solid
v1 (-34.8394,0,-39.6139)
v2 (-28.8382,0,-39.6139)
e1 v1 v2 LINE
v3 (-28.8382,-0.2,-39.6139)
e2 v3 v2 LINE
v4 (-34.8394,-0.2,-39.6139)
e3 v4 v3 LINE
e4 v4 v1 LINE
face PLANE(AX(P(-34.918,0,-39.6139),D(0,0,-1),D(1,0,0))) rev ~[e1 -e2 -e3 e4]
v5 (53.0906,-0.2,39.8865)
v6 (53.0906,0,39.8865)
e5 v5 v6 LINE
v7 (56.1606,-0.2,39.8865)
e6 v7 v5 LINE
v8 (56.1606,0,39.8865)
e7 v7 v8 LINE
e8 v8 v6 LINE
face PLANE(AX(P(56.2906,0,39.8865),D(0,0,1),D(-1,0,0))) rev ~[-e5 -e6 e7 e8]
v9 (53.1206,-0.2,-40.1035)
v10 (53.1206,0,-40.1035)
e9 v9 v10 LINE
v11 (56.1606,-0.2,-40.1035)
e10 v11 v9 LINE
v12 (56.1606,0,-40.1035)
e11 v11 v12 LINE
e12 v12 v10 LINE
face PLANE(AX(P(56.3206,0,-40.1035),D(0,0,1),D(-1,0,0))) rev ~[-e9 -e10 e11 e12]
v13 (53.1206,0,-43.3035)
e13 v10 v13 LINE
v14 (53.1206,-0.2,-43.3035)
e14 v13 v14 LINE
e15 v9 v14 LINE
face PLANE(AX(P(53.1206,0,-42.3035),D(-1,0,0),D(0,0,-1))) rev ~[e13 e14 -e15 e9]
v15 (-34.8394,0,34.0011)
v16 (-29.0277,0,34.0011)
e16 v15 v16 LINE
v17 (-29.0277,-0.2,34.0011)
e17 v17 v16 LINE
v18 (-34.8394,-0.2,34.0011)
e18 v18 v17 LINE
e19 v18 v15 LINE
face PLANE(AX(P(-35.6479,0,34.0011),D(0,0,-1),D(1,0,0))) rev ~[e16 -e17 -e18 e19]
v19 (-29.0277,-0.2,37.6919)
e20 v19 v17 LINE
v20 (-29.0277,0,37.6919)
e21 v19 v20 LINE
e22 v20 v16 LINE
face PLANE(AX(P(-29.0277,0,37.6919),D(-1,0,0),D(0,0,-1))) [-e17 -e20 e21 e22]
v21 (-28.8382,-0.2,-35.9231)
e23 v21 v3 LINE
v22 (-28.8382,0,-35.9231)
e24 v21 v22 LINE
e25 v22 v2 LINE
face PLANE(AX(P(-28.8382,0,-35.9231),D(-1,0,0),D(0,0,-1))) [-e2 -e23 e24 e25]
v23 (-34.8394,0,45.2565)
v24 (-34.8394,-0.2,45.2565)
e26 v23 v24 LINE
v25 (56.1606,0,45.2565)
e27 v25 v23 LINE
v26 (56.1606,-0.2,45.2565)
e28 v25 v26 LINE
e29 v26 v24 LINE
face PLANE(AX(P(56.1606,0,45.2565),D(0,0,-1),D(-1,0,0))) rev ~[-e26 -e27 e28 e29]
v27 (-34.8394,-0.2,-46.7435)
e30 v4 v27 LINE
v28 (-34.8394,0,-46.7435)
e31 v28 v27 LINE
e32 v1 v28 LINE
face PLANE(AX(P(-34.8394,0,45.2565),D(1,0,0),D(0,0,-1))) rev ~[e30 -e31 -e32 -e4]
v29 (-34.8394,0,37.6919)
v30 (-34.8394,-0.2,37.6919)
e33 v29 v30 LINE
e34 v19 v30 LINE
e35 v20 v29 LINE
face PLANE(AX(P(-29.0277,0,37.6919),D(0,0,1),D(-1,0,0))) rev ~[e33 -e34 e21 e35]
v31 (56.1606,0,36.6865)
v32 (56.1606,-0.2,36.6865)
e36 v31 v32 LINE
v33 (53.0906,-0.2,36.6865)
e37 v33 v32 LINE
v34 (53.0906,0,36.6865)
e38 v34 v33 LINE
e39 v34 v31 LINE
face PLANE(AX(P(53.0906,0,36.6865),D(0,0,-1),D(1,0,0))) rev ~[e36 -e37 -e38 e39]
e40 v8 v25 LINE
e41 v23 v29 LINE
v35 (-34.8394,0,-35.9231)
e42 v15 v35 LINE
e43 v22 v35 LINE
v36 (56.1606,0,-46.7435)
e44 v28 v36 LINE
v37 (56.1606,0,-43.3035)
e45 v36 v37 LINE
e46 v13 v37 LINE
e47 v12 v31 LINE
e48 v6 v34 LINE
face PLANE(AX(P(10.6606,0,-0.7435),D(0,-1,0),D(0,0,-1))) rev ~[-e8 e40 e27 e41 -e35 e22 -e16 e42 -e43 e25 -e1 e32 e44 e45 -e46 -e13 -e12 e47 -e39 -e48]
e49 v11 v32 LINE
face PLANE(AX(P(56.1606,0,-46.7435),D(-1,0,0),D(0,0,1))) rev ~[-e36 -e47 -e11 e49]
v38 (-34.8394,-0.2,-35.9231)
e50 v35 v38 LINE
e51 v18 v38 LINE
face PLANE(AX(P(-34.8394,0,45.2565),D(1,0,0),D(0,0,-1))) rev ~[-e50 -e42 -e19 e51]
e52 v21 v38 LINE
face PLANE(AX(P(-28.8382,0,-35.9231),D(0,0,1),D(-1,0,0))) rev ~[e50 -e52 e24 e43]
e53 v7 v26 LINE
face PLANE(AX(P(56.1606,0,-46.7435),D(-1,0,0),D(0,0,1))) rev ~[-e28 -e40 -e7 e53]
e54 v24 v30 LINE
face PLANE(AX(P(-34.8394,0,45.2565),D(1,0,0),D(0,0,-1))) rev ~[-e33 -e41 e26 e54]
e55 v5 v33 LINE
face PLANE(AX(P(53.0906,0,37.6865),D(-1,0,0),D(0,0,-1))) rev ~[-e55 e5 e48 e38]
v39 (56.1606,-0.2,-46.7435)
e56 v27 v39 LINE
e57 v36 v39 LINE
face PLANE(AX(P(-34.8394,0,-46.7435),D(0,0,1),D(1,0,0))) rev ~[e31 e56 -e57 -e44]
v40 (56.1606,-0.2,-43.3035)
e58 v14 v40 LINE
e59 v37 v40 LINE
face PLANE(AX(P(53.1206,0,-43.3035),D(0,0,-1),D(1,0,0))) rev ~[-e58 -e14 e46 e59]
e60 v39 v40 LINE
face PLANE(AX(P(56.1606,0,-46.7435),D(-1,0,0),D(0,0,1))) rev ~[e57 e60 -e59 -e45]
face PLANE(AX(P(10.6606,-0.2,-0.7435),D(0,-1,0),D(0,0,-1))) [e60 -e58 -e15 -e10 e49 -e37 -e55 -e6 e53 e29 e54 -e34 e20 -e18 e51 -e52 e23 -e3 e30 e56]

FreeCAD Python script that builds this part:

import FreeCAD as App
import Part
import Sketcher
from FreeCAD import Vector
Q = App.Units.Quantity

doc = App.newDocument("Part")
params = doc.addObject("Spreadsheet::Sheet", "Params")
for row, (alias, value) in enumerate([
    ("sketch1_width", "91 mm"),
    ("sketch1_height", "92 mm"),
    ("pad1_length", "0.2 mm"),
    ("sketch2_diameter", "3.18 mm"),
    ("pocket1_length", "0.2 mm"),
    ("sketch3_width", "3.2 mm"),
    ("pocket2_length", "12.4682 mm"),
    ("sketch4_width", "3.2 mm"),
    ("pocket3_length", "17.7174 mm"),
    ("pocket4_length", "21.0656 mm"),
], start=1):
    params.set(f"A{row}", alias)
    params.set(f"B{row}", "=" + value)
    params.setAlias(f"B{row}", alias)

body = doc.addObject("PartDesign::Body", "Body")

# Sketch on XZ plane
sketch1 = body.newObject("Sketcher::SketchObject", "Sketch")
sketch1.AttachmentSupport = (doc.getObject("XZ_Plane"), [""])
sketch1.MapMode = "FlatFace"
sketch1.addGeometry(Part.LineSegment(Vector(-34.8394, 45.2565, 0), Vector(-34.8394, -46.7435, 0)), False)
sketch1.addGeometry(Part.LineSegment(Vector(-34.8394, -46.7435, 0), Vector(56.1606, -46.7435, 0)), False)
sketch1.addGeometry(Part.LineSegment(Vector(56.1606, -46.7435, 0), Vector(56.1606, 45.2565, 0)), False)
sketch1.addGeometry(Part.LineSegment(Vector(56.1606, 45.2565, 0), Vector(-34.8394, 45.2565, 0)), False)
sketch1.addConstraint(Sketcher.Constraint("Coincident", 0, 2, 1, 1))
sketch1.addConstraint(Sketcher.Constraint("Coincident", 1, 2, 2, 1))
sketch1.addConstraint(Sketcher.Constraint("Coincident", 2, 2, 3, 1))
sketch1.addConstraint(Sketcher.Constraint("Coincident", 3, 2, 0, 1))
sketch1.addConstraint(Sketcher.Constraint("Vertical", 0))
sketch1.addConstraint(Sketcher.Constraint("Horizontal", 1))
sketch1.addConstraint(Sketcher.Constraint("Vertical", 2))
sketch1.addConstraint(Sketcher.Constraint("Horizontal", 3))
sketch1.addConstraint(Sketcher.Constraint("DistanceX", 1, 1, 1, 2, Q("91 mm")))
sketch1.addConstraint(Sketcher.Constraint("DistanceY", 0, 2, 0, 1, Q("92 mm")))
sketch1.addConstraint(Sketcher.Constraint("DistanceX", 0, 2, -1, 1, Q("34.8394 mm")))
sketch1.addConstraint(Sketcher.Constraint("DistanceY", 0, 2, -1, 1, Q("46.7435 mm")))
sketch1.setExpression("Constraints[8]", "Params.sketch1_width")
sketch1.setExpression("Constraints[9]", "Params.sketch1_height")
pad1 = body.newObject("PartDesign::Pad", "Pad")
pad1.Profile = sketch1
pad1.setExpression("Length", "Params.pad1_length")

# Sketch on XZ plane
sketch2 = body.newObject("Sketcher::SketchObject", "Sketch001")
sketch2.AttachmentSupport = (doc.getObject("XZ_Plane"), [""])
sketch2.MapMode = "FlatFace"
sketch2.AttachmentOffset = App.Placement(Vector(0, 0, 0.2), App.Rotation())
sketch2.addGeometry(Part.Circle(Vector(-30.7894, -37.7535, 0), Vector(0, 0, 1), 1.59), False)
sketch2.addGeometry(Part.Circle(Vector(54.6906, 38.2865, 0), Vector(0, 0, 1), 1.59), False)
sketch2.addGeometry(Part.Circle(Vector(54.7206, -41.7035, 0), Vector(0, 0, 1), 1.59), False)
sketch2.addGeometry(Part.Circle(Vector(-31.0894, 35.8465, 0), Vector(0, 0, 1), 1.59), False)
sketch2.addConstraint(Sketcher.Constraint("Equal", 0, 1))
sketch2.addConstraint(Sketcher.Constraint("Equal", 1, 2))
sketch2.addConstraint(Sketcher.Constraint("Equal", 2, 3))
sketch2.addConstraint(Sketcher.Constraint("Diameter", 0, Q("3.18 mm")))
sketch2.addConstraint(Sketcher.Constraint("DistanceX", 3, 3, 0, 3, Q("0.3 mm")))
sketch2.addConstraint(Sketcher.Constraint("DistanceY", 0, 3, 3, 3, Q("73.6 mm")))
sketch2.addConstraint(Sketcher.Constraint("DistanceX", 0, 3, 1, 3, Q("85.48 mm")))
sketch2.addConstraint(Sketcher.Constraint("DistanceY", 0, 3, 1, 3, Q("76.04 mm")))
sketch2.addConstraint(Sketcher.Constraint("DistanceX", 1, 3, 2, 3, Q("0.03 mm")))
sketch2.addConstraint(Sketcher.Constraint("DistanceY", 2, 3, 1, 3, Q("79.99 mm")))
sketch2.addConstraint(Sketcher.Constraint("DistanceX", 0, 3, -1, 1, Q("30.7894 mm")))
sketch2.addConstraint(Sketcher.Constraint("DistanceY", 0, 3, -1, 1, Q("37.7535 mm")))
sketch2.setExpression("Constraints[3]", "Params.sketch2_diameter")
pocket1 = body.newObject("PartDesign::Pocket", "Pocket")
pocket1.Profile = sketch2
pocket1.setExpression("Length", "Params.pocket1_length")

# Sketch on XZ plane
sketch3 = body.newObject("Sketcher::SketchObject", "Sketch002")
sketch3.AttachmentSupport = (doc.getObject("XZ_Plane"), [""])
sketch3.MapMode = "FlatFace"
sketch3.addGeometry(Part.LineSegment(Vector(53.1206, -43.3035, 0), Vector(53.1206, -40.1035, 0)), False)
sketch3.addGeometry(Part.LineSegment(Vector(53.1206, -40.1035, 0), Vector(56.3206, -40.1035, 0)), False)
sketch3.addGeometry(Part.LineSegment(Vector(56.3206, -40.1035, 0), Vector(56.3206, -43.3035, 0)), False)
sketch3.addGeometry(Part.LineSegment(Vector(56.3206, -43.3035, 0), Vector(53.1206, -43.3035, 0)), False)
sketch3.addConstraint(Sketcher.Constraint("Coincident", 0, 2, 1, 1))
sketch3.addConstraint(Sketcher.Constraint("Coincident", 1, 2, 2, 1))
sketch3.addConstraint(Sketcher.Constraint("Coincident", 2, 2, 3, 1))
sketch3.addConstraint(Sketcher.Constraint("Coincident", 3, 2, 0, 1))
sketch3.addConstraint(Sketcher.Constraint("Vertical", 0))
sketch3.addConstraint(Sketcher.Constraint("Horizontal", 1))
sketch3.addConstraint(Sketcher.Constraint("Vertical", 2))
sketch3.addConstraint(Sketcher.Constraint("Horizontal", 3))
sketch3.addConstraint(Sketcher.Constraint("Equal", 3, 0))
sketch3.addConstraint(Sketcher.Constraint("DistanceX", 1, 1, 1, 2, Q("3.2 mm")))
sketch3.addConstraint(Sketcher.Constraint("DistanceX", -1, 1, 0, 2, Q("53.1206 mm")))
sketch3.addConstraint(Sketcher.Constraint("DistanceY", 0, 2, -1, 1, Q("40.1035 mm")))
sketch3.setExpression("Constraints[9]", "Params.sketch3_width")
pocket2 = body.newObject("PartDesign::Pocket", "Pocket001")
pocket2.Profile = sketch3
pocket2.setExpression("Length", "Params.pocket2_length")
pocket2.Midplane = True

# Sketch on XZ plane
sketch4 = body.newObject("Sketcher::SketchObject", "Sketch003")
sketch4.AttachmentSupport = (doc.getObject("XZ_Plane"), [""])
sketch4.MapMode = "FlatFace"
sketch4.addGeometry(Part.LineSegment(Vector(53.0906, 36.6865, 0), Vector(53.0906, 39.8865, 0)), False)
sketch4.addGeometry(Part.LineSegment(Vector(53.0906, 39.8865, 0), Vector(56.2906, 39.8865, 0)), False)
sketch4.addGeometry(Part.LineSegment(Vector(56.2906, 39.8865, 0), Vector(56.2906, 36.6865, 0)), False)
sketch4.addGeometry(Part.LineSegment(Vector(56.2906, 36.6865, 0), Vector(53.0906, 36.6865, 0)), False)
sketch4.addConstraint(Sketcher.Constraint("Coincident", 0, 2, 1, 1))
sketch4.addConstraint(Sketcher.Constraint("Coincident", 1, 2, 2, 1))
sketch4.addConstraint(Sketcher.Constraint("Coincident", 2, 2, 3, 1))
sketch4.addConstraint(Sketcher.Constraint("Coincident", 3, 2, 0, 1))
sketch4.addConstraint(Sketcher.Constraint("Vertical", 0))
sketch4.addConstraint(Sketcher.Constraint("Horizontal", 1))
sketch4.addConstraint(Sketcher.Constraint("Vertical", 2))
sketch4.addConstraint(Sketcher.Constraint("Horizontal", 3))
sketch4.addConstraint(Sketcher.Constraint("Equal", 3, 0))
sketch4.addConstraint(Sketcher.Constraint("DistanceX", 1, 1, 1, 2, Q("3.2 mm")))
sketch4.addConstraint(Sketcher.Constraint("DistanceX", -1, 1, 0, 2, Q("53.0906 mm")))
sketch4.addConstraint(Sketcher.Constraint("DistanceY", -1, 1, 0, 2, Q("39.8865 mm")))
sketch4.setExpression("Constraints[9]", "Params.sketch4_width")
pocket3 = body.newObject("PartDesign::Pocket", "Pocket002")
pocket3.Profile = sketch4
pocket3.setExpression("Length", "Params.pocket3_length")
pocket3.Midplane = True

# Sketch on XZ plane
sketch5 = body.newObject("Sketcher::SketchObject", "Sketch004")
sketch5.AttachmentSupport = (doc.getObject("XZ_Plane"), [""])
sketch5.MapMode = "FlatFace"
sketch5.addGeometry(Part.LineSegment(Vector(-35.6479, 37.6919, 0), Vector(-29.0277, 37.6919, 0)), False)
sketch5.addGeometry(Part.LineSegment(Vector(-29.0277, 37.6919, 0), Vector(-29.0277, 34.0011, 0)), False)
sketch5.addGeometry(Part.LineSegment(Vector(-29.0277, 34.0011, 0), Vector(-35.6479, 34.0011, 0)), False)
sketch5.addGeometry(Part.LineSegment(Vector(-35.6479, 34.0011, 0), Vector(-35.6479, 37.6919, 0)), False)
sketch5.addGeometry(Part.LineSegment(Vector(-34.918, -35.9231, 0), Vector(-28.8382, -35.9231, 0)), False)
sketch5.addGeometry(Part.LineSegment(Vector(-28.8382, -35.9231, 0), Vector(-28.8382, -39.6139, 0)), False)
sketch5.addGeometry(Part.LineSegment(Vector(-28.8382, -39.6139, 0), Vector(-34.918, -39.6139, 0)), False)
sketch5.addGeometry(Part.LineSegment(Vector(-34.918, -39.6139, 0), Vector(-34.918, -35.9231, 0)), False)
sketch5.addConstraint(Sketcher.Constraint("Coincident", 0, 2, 1, 1))
sketch5.addConstraint(Sketcher.Constraint("Coincident", 1, 2, 2, 1))
sketch5.addConstraint(Sketcher.Constraint("Coincident", 2, 2, 3, 1))
sketch5.addConstraint(Sketcher.Constraint("Coincident", 3, 2, 0, 1))
sketch5.addConstraint(Sketcher.Constraint("Coincident", 4, 2, 5, 1))
sketch5.addConstraint(Sketcher.Constraint("Coincident", 5, 2, 6, 1))
sketch5.addConstraint(Sketcher.Constraint("Coincident", 6, 2, 7, 1))
sketch5.addConstraint(Sketcher.Constraint("Coincident", 7, 2, 4, 1))
sketch5.addConstraint(Sketcher.Constraint("Horizontal", 0))
sketch5.addConstraint(Sketcher.Constraint("Vertical", 1))
sketch5.addConstraint(Sketcher.Constraint("Horizontal", 2))
sketch5.addConstraint(Sketcher.Constraint("Vertical", 3))
sketch5.addConstraint(Sketcher.Constraint("Horizontal", 4))
sketch5.addConstraint(Sketcher.Constraint("Vertical", 5))
sketch5.addConstraint(Sketcher.Constraint("Horizontal", 6))
sketch5.addConstraint(Sketcher.Constraint("Vertical", 7))
sketch5.addConstraint(Sketcher.Constraint("Equal", 3, 5))
sketch5.addConstraint(Sketcher.Constraint("DistanceX", 2, 2, 6, 2, Q("0.73 mm")))
sketch5.addConstraint(Sketcher.Constraint("DistanceX", 0, 1, 0, 2, Q("6.6202 mm")))
sketch5.addConstraint(Sketcher.Constraint("DistanceX", 4, 1, 4, 2, Q("6.0798 mm")))
sketch5.addConstraint(Sketcher.Constraint("DistanceY", 1, 2, 1, 1, Q("3.6908 mm")))
sketch5.addConstraint(Sketcher.Constraint("DistanceY", -1, 1, 0, 2, Q("37.692 mm")))
sketch5.addConstraint(Sketcher.Constraint("DistanceX", 2, 2, -1, 1, Q("35.648 mm")))
sketch5.addConstraint(Sketcher.Constraint("DistanceY", 4, 2, -1, 1, Q("35.923 mm")))
pocket4 = body.newObject("PartDesign::Pocket", "Pocket003")
pocket4.Profile = sketch5
pocket4.setExpression("Length", "Params.pocket4_length")
pocket4.Midplane = True

doc.recompute()
